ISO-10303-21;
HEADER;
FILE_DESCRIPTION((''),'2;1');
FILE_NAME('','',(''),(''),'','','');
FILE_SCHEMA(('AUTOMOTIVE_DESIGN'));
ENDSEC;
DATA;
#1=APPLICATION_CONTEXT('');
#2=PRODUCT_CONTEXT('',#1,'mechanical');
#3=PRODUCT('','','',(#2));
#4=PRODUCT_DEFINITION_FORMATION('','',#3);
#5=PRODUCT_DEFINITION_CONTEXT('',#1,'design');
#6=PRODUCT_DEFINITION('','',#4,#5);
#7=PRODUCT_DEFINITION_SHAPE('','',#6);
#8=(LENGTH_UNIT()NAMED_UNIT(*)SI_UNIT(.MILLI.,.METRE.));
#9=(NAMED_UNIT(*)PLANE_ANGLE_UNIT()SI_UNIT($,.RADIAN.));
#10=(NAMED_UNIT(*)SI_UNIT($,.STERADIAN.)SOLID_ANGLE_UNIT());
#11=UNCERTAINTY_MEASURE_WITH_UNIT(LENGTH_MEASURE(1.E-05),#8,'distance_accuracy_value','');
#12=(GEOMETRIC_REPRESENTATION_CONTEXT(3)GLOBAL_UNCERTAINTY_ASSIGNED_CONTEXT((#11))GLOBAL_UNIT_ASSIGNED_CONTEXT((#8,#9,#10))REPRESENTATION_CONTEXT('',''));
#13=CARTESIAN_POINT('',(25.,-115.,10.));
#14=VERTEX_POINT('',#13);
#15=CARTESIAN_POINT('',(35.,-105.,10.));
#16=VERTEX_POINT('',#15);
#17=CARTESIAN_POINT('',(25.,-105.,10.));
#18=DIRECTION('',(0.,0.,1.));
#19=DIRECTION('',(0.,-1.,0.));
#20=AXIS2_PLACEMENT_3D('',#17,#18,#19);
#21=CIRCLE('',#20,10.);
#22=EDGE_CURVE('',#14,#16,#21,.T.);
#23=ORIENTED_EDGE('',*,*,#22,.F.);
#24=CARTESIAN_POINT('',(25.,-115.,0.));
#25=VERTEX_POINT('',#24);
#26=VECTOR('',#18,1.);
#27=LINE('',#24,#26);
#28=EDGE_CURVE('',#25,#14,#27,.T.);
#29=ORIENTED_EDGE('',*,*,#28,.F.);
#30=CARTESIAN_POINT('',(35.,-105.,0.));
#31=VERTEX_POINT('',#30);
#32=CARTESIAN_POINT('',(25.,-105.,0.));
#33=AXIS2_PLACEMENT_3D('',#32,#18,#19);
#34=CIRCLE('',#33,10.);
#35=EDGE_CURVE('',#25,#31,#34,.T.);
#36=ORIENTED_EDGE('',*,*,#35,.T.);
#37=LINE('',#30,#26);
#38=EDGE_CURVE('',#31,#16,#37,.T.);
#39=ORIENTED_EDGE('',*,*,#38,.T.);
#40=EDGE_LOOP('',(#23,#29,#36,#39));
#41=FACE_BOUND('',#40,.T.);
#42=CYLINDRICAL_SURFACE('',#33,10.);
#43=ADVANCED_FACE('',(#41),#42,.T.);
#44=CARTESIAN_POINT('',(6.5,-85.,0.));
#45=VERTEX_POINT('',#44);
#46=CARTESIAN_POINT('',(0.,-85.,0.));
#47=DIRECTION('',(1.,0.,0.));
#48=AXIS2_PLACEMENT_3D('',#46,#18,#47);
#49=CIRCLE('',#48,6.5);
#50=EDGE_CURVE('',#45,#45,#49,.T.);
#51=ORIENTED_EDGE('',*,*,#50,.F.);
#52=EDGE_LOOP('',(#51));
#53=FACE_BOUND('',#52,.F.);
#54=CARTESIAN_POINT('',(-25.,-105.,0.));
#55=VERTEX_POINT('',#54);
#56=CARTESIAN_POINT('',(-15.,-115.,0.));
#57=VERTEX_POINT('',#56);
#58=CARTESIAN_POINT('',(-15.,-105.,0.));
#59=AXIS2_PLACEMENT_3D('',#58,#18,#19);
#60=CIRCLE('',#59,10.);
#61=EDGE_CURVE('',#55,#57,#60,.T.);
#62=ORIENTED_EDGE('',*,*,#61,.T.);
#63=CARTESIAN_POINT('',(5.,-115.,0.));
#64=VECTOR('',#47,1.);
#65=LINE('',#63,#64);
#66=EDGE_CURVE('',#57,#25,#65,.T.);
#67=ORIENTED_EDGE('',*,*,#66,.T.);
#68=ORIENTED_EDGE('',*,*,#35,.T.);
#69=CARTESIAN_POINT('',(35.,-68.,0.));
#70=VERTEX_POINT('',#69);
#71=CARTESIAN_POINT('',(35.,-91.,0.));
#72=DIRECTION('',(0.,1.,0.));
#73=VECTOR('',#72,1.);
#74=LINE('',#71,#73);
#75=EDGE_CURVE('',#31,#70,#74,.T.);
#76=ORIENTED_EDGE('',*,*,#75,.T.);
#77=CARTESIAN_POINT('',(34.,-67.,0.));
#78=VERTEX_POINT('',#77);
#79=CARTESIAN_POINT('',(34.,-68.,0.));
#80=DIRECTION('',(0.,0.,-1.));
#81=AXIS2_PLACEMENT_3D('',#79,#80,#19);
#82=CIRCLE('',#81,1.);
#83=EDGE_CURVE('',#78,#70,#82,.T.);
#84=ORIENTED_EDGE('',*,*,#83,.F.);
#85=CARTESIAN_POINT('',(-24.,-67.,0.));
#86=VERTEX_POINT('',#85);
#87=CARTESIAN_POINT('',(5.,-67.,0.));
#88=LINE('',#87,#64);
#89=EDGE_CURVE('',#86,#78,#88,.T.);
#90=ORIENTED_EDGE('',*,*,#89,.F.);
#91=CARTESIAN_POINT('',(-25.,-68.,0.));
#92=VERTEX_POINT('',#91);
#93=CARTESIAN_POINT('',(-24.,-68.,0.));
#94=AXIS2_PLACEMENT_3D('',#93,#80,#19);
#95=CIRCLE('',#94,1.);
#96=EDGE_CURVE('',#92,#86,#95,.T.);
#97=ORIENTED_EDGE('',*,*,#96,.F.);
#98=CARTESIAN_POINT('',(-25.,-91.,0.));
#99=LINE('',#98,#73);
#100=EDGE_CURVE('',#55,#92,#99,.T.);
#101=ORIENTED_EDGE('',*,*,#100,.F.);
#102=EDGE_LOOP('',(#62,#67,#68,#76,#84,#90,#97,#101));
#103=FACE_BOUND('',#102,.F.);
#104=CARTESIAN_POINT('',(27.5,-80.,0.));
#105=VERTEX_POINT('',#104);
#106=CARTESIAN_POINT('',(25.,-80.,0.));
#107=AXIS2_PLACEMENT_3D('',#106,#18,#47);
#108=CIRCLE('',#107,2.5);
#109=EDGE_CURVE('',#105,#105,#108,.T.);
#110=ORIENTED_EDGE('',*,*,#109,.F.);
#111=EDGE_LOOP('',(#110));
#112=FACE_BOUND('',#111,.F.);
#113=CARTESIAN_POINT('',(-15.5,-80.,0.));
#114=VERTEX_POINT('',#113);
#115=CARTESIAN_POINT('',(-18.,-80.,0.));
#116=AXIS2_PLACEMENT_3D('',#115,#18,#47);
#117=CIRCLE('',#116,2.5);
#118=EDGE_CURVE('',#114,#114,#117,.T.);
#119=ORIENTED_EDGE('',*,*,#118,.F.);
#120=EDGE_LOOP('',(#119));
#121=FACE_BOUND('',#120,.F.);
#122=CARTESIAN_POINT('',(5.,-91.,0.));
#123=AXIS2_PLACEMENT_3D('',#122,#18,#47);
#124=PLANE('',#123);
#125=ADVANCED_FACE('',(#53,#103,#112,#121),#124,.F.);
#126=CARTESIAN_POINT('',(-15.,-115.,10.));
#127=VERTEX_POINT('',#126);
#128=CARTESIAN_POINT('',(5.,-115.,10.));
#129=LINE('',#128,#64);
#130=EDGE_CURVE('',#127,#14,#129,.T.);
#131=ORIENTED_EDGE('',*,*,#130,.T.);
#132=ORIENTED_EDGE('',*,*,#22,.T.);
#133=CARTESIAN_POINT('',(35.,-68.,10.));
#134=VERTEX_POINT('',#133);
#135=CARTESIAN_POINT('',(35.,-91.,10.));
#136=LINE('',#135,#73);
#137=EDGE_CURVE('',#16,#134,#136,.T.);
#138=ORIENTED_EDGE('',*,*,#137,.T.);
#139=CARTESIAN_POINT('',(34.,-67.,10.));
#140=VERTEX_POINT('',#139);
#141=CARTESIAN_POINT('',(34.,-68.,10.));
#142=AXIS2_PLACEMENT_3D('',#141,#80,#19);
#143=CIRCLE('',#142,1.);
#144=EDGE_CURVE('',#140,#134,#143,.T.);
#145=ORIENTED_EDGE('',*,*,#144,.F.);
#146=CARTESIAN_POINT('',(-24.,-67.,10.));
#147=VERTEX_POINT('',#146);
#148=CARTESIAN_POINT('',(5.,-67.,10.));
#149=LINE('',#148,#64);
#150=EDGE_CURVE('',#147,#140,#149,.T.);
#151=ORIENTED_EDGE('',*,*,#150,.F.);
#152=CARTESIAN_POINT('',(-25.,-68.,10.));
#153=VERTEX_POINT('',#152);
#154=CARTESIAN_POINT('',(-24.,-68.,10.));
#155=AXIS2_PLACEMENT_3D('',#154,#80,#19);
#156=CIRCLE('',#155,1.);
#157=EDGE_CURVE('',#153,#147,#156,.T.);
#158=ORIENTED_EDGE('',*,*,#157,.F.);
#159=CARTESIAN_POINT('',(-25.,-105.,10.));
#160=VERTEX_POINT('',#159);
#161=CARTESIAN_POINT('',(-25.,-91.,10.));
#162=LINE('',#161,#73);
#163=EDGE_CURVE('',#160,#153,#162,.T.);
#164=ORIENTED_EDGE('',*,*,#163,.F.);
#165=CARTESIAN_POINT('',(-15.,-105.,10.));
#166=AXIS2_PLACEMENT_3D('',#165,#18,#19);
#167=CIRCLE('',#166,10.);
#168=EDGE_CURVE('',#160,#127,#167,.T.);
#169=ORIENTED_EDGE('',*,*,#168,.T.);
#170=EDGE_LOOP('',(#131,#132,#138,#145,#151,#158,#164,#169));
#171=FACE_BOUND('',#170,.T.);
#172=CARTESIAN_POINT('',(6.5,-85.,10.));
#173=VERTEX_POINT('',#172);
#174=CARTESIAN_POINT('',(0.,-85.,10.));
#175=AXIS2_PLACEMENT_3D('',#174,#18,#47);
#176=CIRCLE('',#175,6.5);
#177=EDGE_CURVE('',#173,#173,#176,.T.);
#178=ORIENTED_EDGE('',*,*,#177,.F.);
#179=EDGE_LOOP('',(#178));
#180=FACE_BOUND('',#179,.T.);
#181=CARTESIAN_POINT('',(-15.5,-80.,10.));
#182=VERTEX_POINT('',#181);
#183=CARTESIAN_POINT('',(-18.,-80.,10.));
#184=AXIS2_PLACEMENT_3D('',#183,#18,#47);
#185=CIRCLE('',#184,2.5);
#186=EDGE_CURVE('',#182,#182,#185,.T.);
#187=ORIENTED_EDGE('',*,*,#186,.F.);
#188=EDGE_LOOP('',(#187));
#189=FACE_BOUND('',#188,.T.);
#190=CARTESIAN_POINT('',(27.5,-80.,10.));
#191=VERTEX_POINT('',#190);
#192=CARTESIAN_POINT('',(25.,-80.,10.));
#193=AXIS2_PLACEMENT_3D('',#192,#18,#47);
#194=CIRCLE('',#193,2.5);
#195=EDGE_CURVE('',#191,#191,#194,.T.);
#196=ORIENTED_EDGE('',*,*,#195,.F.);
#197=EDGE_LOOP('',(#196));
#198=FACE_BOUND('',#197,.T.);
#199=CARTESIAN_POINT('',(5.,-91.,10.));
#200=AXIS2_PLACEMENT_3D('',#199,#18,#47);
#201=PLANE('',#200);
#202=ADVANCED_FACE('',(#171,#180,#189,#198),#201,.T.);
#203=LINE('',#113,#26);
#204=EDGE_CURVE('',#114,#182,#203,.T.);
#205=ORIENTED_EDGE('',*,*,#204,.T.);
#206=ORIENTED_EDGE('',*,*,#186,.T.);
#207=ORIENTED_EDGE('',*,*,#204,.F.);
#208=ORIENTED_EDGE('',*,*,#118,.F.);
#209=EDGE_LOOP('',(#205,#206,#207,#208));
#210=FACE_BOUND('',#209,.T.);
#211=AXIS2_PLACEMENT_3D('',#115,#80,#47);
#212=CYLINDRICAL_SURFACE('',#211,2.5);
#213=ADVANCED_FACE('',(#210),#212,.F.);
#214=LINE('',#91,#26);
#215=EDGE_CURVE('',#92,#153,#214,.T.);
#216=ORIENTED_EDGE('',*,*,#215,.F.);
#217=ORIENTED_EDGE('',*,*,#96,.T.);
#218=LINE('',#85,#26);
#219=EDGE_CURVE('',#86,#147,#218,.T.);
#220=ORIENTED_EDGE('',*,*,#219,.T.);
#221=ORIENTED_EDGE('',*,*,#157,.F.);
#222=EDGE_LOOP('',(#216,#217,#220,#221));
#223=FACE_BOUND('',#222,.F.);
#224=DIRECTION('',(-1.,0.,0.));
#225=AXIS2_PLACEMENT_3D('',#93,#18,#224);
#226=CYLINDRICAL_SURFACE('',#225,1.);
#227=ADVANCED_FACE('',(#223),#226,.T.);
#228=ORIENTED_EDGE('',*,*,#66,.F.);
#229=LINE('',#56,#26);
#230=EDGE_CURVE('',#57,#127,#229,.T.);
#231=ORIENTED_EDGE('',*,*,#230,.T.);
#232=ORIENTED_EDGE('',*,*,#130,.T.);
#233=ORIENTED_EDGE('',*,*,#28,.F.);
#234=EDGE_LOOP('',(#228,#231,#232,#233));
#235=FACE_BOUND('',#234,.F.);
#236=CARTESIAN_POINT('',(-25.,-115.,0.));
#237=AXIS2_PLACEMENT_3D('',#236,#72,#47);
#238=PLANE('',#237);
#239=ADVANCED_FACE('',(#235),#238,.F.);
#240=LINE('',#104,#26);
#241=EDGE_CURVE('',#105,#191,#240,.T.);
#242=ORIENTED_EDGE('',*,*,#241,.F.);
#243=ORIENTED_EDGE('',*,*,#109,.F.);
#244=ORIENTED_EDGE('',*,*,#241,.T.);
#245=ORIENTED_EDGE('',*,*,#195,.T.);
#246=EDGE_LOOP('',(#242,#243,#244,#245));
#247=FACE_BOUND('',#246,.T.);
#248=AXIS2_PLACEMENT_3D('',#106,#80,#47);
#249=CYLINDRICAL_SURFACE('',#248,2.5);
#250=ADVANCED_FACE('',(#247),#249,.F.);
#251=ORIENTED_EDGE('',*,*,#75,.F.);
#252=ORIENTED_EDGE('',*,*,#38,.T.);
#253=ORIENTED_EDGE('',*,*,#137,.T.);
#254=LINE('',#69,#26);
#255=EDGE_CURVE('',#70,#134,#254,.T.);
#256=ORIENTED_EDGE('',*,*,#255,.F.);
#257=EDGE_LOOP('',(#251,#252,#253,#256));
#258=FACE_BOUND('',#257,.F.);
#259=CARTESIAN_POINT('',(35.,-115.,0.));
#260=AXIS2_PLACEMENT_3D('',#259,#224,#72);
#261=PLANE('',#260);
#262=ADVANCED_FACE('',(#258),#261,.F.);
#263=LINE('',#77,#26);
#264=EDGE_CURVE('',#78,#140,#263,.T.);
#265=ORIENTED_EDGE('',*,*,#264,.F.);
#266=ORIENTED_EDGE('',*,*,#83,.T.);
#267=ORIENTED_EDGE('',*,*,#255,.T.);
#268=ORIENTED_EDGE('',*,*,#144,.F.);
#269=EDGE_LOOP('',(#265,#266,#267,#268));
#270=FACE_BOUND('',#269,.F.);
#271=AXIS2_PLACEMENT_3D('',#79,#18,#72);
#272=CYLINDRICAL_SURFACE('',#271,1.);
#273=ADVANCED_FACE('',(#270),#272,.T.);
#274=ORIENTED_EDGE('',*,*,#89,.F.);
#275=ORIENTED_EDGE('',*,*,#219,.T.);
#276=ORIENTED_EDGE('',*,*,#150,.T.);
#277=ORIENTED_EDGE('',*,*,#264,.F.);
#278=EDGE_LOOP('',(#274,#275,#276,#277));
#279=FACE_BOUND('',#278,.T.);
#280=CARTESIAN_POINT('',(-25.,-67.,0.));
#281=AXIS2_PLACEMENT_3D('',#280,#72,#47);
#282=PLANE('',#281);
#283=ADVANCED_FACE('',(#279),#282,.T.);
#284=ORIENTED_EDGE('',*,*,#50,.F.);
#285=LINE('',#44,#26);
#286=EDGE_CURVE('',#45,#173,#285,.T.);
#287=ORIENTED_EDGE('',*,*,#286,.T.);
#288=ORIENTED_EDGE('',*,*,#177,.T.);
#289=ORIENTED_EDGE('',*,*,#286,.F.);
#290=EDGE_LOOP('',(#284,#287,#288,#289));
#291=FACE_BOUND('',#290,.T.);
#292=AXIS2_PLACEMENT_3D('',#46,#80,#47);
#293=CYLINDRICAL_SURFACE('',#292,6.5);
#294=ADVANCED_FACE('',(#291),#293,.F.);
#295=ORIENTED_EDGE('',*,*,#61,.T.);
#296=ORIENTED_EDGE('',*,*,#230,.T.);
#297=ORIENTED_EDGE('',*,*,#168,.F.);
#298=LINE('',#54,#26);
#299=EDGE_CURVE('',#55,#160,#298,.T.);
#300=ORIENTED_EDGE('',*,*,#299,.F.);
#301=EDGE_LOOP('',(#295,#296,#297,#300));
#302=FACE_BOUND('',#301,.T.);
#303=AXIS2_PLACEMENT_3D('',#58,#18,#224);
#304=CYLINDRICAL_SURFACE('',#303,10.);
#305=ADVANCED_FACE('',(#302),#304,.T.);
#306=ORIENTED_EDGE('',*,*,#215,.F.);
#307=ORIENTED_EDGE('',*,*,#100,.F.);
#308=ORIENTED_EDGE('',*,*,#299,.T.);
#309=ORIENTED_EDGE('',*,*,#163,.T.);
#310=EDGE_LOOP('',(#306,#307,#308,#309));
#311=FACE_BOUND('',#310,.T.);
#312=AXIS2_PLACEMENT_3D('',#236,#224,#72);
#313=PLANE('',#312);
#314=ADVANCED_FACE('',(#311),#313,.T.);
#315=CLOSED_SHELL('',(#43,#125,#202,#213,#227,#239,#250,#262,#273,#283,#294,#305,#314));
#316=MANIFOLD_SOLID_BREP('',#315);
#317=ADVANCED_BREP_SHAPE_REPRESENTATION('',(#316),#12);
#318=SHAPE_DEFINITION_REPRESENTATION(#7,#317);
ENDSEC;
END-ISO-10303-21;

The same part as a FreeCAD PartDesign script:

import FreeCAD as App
import Part
import Sketcher

V = App.Vector


def edges_at(feature, points):
    """Names of the edges that pass closest to the given points."""
    edges = feature.Shape.Edges
    near = lambda p: min(range(len(edges)), key=lambda i: edges[i].distToShape(Part.Vertex(*p))[0])
    return sorted({f"Edge{near(p) + 1}" for p in points})


def add_polygon(sketch, points):
    """Adds a closed chain of lines whose ends are joined by coincident constraints."""
    first, n = sketch.GeometryCount, len(points)
    for a, b in zip(points, points[1:] + points[:1]):
        sketch.addGeometry(Part.LineSegment(App.Vector(*a, 0), App.Vector(*b, 0)), False)
    for i in range(n):
        sketch.addConstraint(Sketcher.Constraint("Coincident", first + i, 2, first + (i + 1) % n, 1))

doc = App.newDocument("Part")
params = doc.addObject("Spreadsheet::Sheet", "Params")
for row, (alias, value) in enumerate([
    ("sketch1_diameter", "13 mm"),
    ("sketch1_diameter2", "5 mm"),
    ("sketch1_width", "60 mm"),
    ("sketch1_height", "48 mm"),
    ("pad1_length", "10 mm"),
    ("fillet_radius", "10 mm"),
    ("fillet2_radius", "1 mm"),
], start=1):
    params.set(f"A{row}", alias)
    params.set(f"B{row}", "=" + value)
    params.setAlias(f"B{row}", alias)

body = doc.addObject("PartDesign::Body", "Body")

sketch1 = body.newObject("Sketcher::SketchObject", "Sketch")
sketch1.AttachmentSupport = (doc.getObject("XY_Plane"), [""])
sketch1.MapMode = "FlatFace"
add_polygon(sketch1, [(-25, -67), (-25, -115), (35, -115), (35, -67)])
sketch1.addGeometry(Part.Circle(V(0, -85, 0), V(0, 0, 1), 6.5), False)
sketch1.addGeometry(Part.Circle(V(-18, -80, 0), V(0, 0, 1), 2.5), False)
sketch1.addGeometry(Part.Circle(V(25, -80, 0), V(0, 0, 1), 2.5), False)
sketch1.addConstraint(Sketcher.Constraint("Vertical", 0))
sketch1.addConstraint(Sketcher.Constraint("Horizontal", 1))
sketch1.addConstraint(Sketcher.Constraint("Vertical", 2))
sketch1.addConstraint(Sketcher.Constraint("Horizontal", 3))
sketch1.addConstraint(Sketcher.Constraint("Equal", 5, 6))
sketch1.addConstraint(Sketcher.Constraint("PointOnObject", 4, 3, -2))
sketch1.addConstraint(Sketcher.Constraint("Horizontal", 5, 3, 6, 3))
sketch1.addConstraint(Sketcher.Constraint("Diameter", 4, 13.0))
sketch1.addConstraint(Sketcher.Constraint("Diameter", 5, 5.0))
sketch1.addConstraint(Sketcher.Constraint("DistanceX", 1, 1, 1, 2, 60.0))
sketch1.addConstraint(Sketcher.Constraint("DistanceY", 0, 2, 0, 1, 48.0))
sketch1.addConstraint(Sketcher.Constraint("DistanceY", 4, 3, -1, 1, 85.0))
sketch1.addConstraint(Sketcher.Constraint("DistanceX", 5, 3, -1, 1, 18.0))
sketch1.addConstraint(Sketcher.Constraint("DistanceY", 5, 3, -1, 1, 80.0))
sketch1.addConstraint(Sketcher.Constraint("DistanceX", -1, 1, 6, 3, 25.0))
sketch1.addConstraint(Sketcher.Constraint("DistanceX", 0, 2, -1, 1, 25.0))
sketch1.addConstraint(Sketcher.Constraint("DistanceY", 0, 2, -1, 1, 115.0))
sketch1.setExpression("Constraints[11]", "Params.sketch1_diameter")
sketch1.setExpression("Constraints[12]", "Params.sketch1_diameter2")
sketch1.setExpression("Constraints[13]", "Params.sketch1_width")
sketch1.setExpression("Constraints[14]", "Params.sketch1_height")
pad1 = body.newObject("PartDesign::Pad", "Pad")
pad1.Profile = sketch1
pad1.setExpression("Length", "Params.pad1_length")
doc.recompute()

fillet = body.newObject("PartDesign::Fillet", "Fillet")
fillet.Base = (pad1, edges_at(pad1, [(-25, -115, 5), (35, -115, 5)]))
fillet.setExpression("Radius", "Params.fillet_radius")
doc.recompute()

fillet2 = body.newObject("PartDesign::Fillet", "Fillet001")
fillet2.Base = (fillet, edges_at(fillet, [(35, -67, 5), (-25, -67, 5)]))
fillet2.setExpression("Radius", "Params.fillet2_radius")

doc.recompute()
